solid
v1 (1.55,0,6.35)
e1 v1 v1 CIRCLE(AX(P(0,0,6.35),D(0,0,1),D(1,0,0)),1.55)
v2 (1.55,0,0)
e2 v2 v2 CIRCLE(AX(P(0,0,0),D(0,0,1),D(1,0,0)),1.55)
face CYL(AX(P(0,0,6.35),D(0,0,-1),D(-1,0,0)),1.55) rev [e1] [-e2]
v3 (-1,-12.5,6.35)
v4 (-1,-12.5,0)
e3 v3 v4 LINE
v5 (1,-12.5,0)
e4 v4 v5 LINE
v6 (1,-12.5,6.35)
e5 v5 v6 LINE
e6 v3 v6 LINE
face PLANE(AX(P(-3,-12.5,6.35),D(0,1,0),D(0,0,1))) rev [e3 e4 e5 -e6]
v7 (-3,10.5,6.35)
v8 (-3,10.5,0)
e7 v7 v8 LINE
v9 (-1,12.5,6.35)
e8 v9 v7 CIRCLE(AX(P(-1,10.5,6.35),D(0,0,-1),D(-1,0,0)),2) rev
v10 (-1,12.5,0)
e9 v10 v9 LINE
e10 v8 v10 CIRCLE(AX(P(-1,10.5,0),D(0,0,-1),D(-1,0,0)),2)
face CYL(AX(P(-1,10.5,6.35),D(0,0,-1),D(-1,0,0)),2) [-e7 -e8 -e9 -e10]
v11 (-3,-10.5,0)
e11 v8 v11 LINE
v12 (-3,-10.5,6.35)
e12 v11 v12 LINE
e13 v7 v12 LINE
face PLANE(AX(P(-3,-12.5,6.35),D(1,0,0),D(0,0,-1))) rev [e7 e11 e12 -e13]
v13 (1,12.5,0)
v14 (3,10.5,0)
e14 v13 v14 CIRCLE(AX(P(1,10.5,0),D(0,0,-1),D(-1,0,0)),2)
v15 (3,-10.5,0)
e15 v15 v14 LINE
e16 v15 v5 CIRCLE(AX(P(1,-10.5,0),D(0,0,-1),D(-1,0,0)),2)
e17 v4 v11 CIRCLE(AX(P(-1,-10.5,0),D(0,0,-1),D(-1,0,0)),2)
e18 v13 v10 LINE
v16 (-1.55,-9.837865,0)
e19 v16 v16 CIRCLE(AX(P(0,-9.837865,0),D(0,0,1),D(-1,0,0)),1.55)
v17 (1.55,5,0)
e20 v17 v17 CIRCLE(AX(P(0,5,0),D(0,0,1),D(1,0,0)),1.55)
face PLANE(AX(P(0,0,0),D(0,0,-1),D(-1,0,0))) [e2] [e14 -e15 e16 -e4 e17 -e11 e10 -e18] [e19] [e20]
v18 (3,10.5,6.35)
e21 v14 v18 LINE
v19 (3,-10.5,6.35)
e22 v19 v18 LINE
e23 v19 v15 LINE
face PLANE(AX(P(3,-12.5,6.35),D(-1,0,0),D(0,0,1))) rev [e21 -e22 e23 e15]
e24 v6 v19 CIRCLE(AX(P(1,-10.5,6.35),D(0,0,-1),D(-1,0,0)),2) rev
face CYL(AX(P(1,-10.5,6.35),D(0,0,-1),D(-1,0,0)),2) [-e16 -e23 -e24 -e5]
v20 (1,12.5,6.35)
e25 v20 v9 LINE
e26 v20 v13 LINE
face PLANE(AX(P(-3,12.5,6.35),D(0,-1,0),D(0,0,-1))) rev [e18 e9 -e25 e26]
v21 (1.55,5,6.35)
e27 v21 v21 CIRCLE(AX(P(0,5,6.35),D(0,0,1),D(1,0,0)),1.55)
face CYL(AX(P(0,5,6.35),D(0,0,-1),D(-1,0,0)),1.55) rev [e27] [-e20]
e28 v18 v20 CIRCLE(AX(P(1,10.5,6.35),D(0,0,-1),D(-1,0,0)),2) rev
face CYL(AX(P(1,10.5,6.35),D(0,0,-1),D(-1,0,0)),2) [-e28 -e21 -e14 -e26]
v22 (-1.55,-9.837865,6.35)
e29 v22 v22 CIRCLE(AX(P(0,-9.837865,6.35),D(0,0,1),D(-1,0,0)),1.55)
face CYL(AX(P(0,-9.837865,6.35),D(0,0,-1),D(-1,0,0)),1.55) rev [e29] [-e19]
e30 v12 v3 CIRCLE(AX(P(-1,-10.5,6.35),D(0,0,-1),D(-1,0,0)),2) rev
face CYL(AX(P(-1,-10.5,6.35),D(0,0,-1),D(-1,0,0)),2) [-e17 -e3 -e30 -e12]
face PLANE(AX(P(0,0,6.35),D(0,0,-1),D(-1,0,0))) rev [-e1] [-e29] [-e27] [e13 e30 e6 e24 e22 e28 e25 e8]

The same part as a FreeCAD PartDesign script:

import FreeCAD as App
import Part
import Sketcher


def edges_at(feature, points):
    """Names of the edges that pass closest to the given points."""
    edges = feature.Shape.Edges
    near = lambda p: min(range(len(edges)), key=lambda i: edges[i].distToShape(Part.Vertex(*p))[0])
    return sorted({f"Edge{near(p) + 1}" for p in points})

doc = App.newDocument("Part")
body = doc.addObject("PartDesign::Body", "Body")

# Sketch on XY plane
sketch1 = body.newObject("Sketcher::SketchObject", "Sketch")
sketch1.AttachmentSupport = (doc.getObject("XY_Plane"), [""])
sketch1.MapMode = "FlatFace"
sketch1.addGeometry([
    Part.LineSegment(App.Vector(-3, 12.5, 0), App.Vector(-3, -12.5, 0)),  # 0
    Part.LineSegment(App.Vector(-3, -12.5, 0), App.Vector(3, -12.5, 0)),  # 1
    Part.LineSegment(App.Vector(3, -12.5, 0), App.Vector(3, 12.5, 0)),  # 2
    Part.LineSegment(App.Vector(3, 12.5, 0), App.Vector(-3, 12.5, 0)),  # 3
    Part.Circle(App.Vector(0, -9.8, 0), App.Vector(0, 0, 1), 1.6),  # 4
    Part.Circle(App.Vector(0, 0, 0), App.Vector(0, 0, 1), 1.6),  # 5
    Part.Circle(App.Vector(0, 5, 0), App.Vector(0, 0, 1), 1.6),  # 6
], False)
sketch1.addConstraint([
    Sketcher.Constraint("Coincident", 0, 2, 1, 1),
    Sketcher.Constraint("Coincident", 1, 2, 2, 1),
    Sketcher.Constraint("Coincident", 2, 2, 3, 1),
    Sketcher.Constraint("Coincident", 3, 2, 0, 1),
    Sketcher.Constraint("Vertical", 0),
    Sketcher.Constraint("Horizontal", 1),
    Sketcher.Constraint("Vertical", 2),
    Sketcher.Constraint("Horizontal", 3),
    Sketcher.Constraint("Coincident", 5, 3, -1, 1),
    Sketcher.Constraint("Equal", 4, 5),
    Sketcher.Constraint("Equal", 5, 6),
    Sketcher.Constraint("Symmetric", 0, 2, 2, 2, -1, 1),
    Sketcher.Constraint("PointOnObject", 4, 3, -2),
    Sketcher.Constraint("PointOnObject", 6, 3, -2),
    Sketcher.Constraint("Diameter", 4, 3.1),
    Sketcher.Constraint("DistanceX", 1, 1, 1, 2, 6.0),
    Sketcher.Constraint("DistanceY", 0, 2, 0, 1, 25.0),
    Sketcher.Constraint("DistanceY", -1, 1, 6, 3, 5.0),
    Sketcher.Constraint("DistanceY", 4, 3, -1, 1, 9.837865),
])
pad1 = body.newObject("PartDesign::Pad", "Pad")
pad1.Profile = sketch1
pad1.Length = 6.35
doc.recompute()

fillet = body.newObject("PartDesign::Fillet", "Fillet")
fillet.Base = (pad1, edges_at(pad1, [
    (3, -12.5, 3.175),
    (-3, -12.5, 3.175),
    (-3, 12.5, 3.175),
    (3, 12.5, 3.175),
]))
fillet.Radius = 2

doc.recompute()
